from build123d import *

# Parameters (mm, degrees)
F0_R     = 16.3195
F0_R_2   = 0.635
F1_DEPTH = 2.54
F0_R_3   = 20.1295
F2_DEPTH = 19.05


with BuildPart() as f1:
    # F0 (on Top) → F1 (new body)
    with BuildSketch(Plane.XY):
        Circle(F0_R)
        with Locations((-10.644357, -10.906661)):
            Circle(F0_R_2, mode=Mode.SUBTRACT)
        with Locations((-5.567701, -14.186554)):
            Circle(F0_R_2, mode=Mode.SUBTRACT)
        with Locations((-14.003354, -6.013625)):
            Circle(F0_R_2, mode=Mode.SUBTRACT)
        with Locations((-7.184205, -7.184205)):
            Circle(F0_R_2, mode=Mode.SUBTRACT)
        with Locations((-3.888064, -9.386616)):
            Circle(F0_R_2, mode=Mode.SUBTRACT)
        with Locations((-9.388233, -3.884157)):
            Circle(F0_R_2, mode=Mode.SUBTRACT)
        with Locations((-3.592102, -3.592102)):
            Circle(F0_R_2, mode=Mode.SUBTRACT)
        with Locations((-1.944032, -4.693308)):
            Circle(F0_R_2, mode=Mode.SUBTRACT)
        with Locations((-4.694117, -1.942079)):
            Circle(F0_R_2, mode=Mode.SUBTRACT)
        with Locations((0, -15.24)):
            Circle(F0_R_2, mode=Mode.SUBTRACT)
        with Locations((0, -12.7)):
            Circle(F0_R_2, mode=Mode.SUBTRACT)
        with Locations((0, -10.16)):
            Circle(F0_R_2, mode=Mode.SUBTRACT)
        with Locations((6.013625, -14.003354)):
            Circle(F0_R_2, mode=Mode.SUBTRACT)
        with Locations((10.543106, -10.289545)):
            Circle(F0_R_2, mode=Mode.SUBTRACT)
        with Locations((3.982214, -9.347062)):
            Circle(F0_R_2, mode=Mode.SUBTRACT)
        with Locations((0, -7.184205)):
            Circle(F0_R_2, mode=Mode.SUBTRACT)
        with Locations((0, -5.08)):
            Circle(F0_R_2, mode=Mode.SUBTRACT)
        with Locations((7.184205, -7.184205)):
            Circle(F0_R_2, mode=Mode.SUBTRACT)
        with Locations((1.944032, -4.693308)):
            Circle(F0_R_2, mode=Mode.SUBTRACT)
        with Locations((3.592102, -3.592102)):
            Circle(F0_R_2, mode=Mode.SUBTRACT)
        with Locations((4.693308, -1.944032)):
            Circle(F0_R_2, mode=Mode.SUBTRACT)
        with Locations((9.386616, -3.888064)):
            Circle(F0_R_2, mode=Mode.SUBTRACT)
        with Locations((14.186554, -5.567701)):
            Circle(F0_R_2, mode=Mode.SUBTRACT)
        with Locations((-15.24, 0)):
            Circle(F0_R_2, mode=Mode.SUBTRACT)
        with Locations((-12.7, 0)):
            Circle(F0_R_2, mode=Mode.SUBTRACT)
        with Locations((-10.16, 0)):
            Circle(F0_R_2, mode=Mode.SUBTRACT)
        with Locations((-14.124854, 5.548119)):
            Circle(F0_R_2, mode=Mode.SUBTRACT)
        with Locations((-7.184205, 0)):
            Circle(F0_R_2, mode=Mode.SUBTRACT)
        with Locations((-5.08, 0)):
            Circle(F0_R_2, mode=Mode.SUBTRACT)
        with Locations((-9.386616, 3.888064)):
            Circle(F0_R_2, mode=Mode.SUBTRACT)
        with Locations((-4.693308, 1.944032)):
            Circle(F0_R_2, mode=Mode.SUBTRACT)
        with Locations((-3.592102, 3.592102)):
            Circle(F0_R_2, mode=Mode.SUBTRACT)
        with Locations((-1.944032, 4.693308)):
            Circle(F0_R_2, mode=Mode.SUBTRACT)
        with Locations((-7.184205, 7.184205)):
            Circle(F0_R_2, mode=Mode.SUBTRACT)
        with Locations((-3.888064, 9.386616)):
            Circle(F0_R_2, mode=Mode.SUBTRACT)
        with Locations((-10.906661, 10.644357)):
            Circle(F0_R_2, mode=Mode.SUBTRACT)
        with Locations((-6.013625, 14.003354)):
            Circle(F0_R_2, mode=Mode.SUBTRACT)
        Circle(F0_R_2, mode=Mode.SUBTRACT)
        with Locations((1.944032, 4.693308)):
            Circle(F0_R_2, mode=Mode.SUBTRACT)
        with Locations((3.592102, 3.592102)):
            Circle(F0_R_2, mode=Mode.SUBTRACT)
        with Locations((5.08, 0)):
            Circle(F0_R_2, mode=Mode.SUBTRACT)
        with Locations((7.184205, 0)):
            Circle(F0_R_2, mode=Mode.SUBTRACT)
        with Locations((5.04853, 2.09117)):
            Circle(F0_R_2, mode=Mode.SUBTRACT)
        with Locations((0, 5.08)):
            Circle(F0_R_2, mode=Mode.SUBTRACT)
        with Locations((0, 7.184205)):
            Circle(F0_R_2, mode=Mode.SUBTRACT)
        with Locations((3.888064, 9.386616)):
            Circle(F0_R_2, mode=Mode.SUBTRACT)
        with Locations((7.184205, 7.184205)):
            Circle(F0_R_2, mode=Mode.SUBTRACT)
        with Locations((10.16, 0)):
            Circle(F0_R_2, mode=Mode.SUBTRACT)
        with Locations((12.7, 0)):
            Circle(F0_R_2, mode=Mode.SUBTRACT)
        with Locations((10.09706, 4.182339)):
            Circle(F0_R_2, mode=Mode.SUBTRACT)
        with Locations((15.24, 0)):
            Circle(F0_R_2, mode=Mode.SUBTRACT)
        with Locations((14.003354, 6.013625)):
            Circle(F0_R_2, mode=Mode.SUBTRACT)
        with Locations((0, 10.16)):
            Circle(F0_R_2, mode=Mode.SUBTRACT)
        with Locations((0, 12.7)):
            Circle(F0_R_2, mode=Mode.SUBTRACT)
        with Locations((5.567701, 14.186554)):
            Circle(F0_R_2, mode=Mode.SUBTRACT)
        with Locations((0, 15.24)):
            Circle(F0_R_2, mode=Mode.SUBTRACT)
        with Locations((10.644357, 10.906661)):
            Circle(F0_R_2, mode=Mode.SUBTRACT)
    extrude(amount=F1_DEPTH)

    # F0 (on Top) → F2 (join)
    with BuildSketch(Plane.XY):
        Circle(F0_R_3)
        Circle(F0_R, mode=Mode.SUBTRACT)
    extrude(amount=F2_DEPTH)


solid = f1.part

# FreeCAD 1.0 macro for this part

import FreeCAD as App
import Part
import Sketcher
Q = App.Units.Quantity

doc = App.newDocument("Part")
body = doc.addObject("PartDesign::Body", "Body")

sketch1 = body.newObject("Sketcher::SketchObject", "Sketch")
sketch1.AttachmentSupport = (doc.getObject("XY_Plane"), [""])
sketch1.MapMode = "FlatFace"
sketch1.addGeometry([
    Part.Circle(App.Vector(0, 0, 0), App.Vector(0, 0, 1), 16.3195),
    Part.Circle(App.Vector(-10.644357, -10.906661, 0), App.Vector(0, 0, 1), 0.635),
    Part.Circle(App.Vector(-5.567701, -14.186554, 0), App.Vector(0, 0, 1), 0.635),
    Part.Circle(App.Vector(-3.888064, -9.386616, 0), App.Vector(0, 0, 1), 0.635),
    Part.Circle(App.Vector(-14.003354, -6.013625, 0), App.Vector(0, 0, 1), 0.635),
    Part.Circle(App.Vector(-9.388233, -3.884157, 0), App.Vector(0, 0, 1), 0.635),
    Part.Circle(App.Vector(-7.184205, -7.184205, 0), App.Vector(0, 0, 1), 0.635),
    Part.Circle(App.Vector(-1.944032, -4.693308, 0), App.Vector(0, 0, 1), 0.635),
    Part.Circle(App.Vector(-4.694117, -1.942079, 0), App.Vector(0, 0, 1), 0.635),
    Part.Circle(App.Vector(-3.592102, -3.592102, 0), App.Vector(0, 0, 1), 0.635),
    Part.Circle(App.Vector(0, -15.24, 0), App.Vector(0, 0, 1), 0.635),
    Part.Circle(App.Vector(0, -12.7, 0), App.Vector(0, 0, 1), 0.635),
    Part.Circle(App.Vector(6.013625, -14.003354, 0), App.Vector(0, 0, 1), 0.635),
    Part.Circle(App.Vector(0, -10.16, 0), App.Vector(0, 0, 1), 0.635),
    Part.Circle(App.Vector(3.982214, -9.347062, 0), App.Vector(0, 0, 1), 0.635),
    Part.Circle(App.Vector(10.543106, -10.289545, 0), App.Vector(0, 0, 1), 0.635),
    Part.Circle(App.Vector(0, -7.184205, 0), App.Vector(0, 0, 1), 0.635),
    Part.Circle(App.Vector(0, -5.08, 0), App.Vector(0, 0, 1), 0.635),
    Part.Circle(App.Vector(1.944032, -4.693308, 0), App.Vector(0, 0, 1), 0.635),
    Part.Circle(App.Vector(7.184205, -7.184205, 0), App.Vector(0, 0, 1), 0.635),
    Part.Circle(App.Vector(3.592102, -3.592102, 0), App.Vector(0, 0, 1), 0.635),
    Part.Circle(App.Vector(4.693308, -1.944032, 0), App.Vector(0, 0, 1), 0.635),
    Part.Circle(App.Vector(14.186554, -5.567701, 0), App.Vector(0, 0, 1), 0.635),
    Part.Circle(App.Vector(9.386616, -3.888064, 0), App.Vector(0, 0, 1), 0.635),
    Part.Circle(App.Vector(-15.24, 0, 0), App.Vector(0, 0, 1), 0.635),
    Part.Circle(App.Vector(-12.7, 0, 0), App.Vector(0, 0, 1), 0.635),
    Part.Circle(App.Vector(-10.16, 0, 0), App.Vector(0, 0, 1), 0.635),
    Part.Circle(App.Vector(-9.386616, 3.888064, 0), App.Vector(0, 0, 1), 0.635),
    Part.Circle(App.Vector(-14.124854, 5.548119, 0), App.Vector(0, 0, 1), 0.635),
    Part.Circle(App.Vector(-7.184205, 0, 0), App.Vector(0, 0, 1), 0.635),
    Part.Circle(App.Vector(-5.08, 0, 0), App.Vector(0, 0, 1), 0.635),
    Part.Circle(App.Vector(-4.693308, 1.944032, 0), App.Vector(0, 0, 1), 0.635),
    Part.Circle(App.Vector(-3.592102, 3.592102, 0), App.Vector(0, 0, 1), 0.635),
    Part.Circle(App.Vector(-7.184205, 7.184205, 0), App.Vector(0, 0, 1), 0.635),
    Part.Circle(App.Vector(-1.944032, 4.693308, 0), App.Vector(0, 0, 1), 0.635),
    Part.Circle(App.Vector(-10.906661, 10.644357, 0), App.Vector(0, 0, 1), 0.635),
    Part.Circle(App.Vector(-3.888064, 9.386616, 0), App.Vector(0, 0, 1), 0.635),
    Part.Circle(App.Vector(-6.013625, 14.003354, 0), App.Vector(0, 0, 1), 0.635),
    Part.Circle(App.Vector(0, 0, 0), App.Vector(0, 0, 1), 0.635),
    Part.Circle(App.Vector(3.592102, 3.592102, 0), App.Vector(0, 0, 1), 0.635),
    Part.Circle(App.Vector(5.08, 0, 0), App.Vector(0, 0, 1), 0.635),
    Part.Circle(App.Vector(7.184205, 0, 0), App.Vector(0, 0, 1), 0.635),
    Part.Circle(App.Vector(5.04853, 2.09117, 0), App.Vector(0, 0, 1), 0.635),
    Part.Circle(App.Vector(1.944032, 4.693308, 0), App.Vector(0, 0, 1), 0.635),
    Part.Circle(App.Vector(0, 5.08, 0), App.Vector(0, 0, 1), 0.635),
    Part.Circle(App.Vector(0, 7.184205, 0), App.Vector(0, 0, 1), 0.635),
    Part.Circle(App.Vector(7.184205, 7.184205, 0), App.Vector(0, 0, 1), 0.635),
    Part.Circle(App.Vector(10.16, 0, 0), App.Vector(0, 0, 1), 0.635),
    Part.Circle(App.Vector(12.7, 0, 0), App.Vector(0, 0, 1), 0.635),
    Part.Circle(App.Vector(15.24, 0, 0), App.Vector(0, 0, 1), 0.635),
    Part.Circle(App.Vector(10.09706, 4.182339, 0), App.Vector(0, 0, 1), 0.635),
    Part.Circle(App.Vector(14.003354, 6.013625, 0), App.Vector(0, 0, 1), 0.635),
    Part.Circle(App.Vector(3.888064, 9.386616, 0), App.Vector(0, 0, 1), 0.635),
    Part.Circle(App.Vector(0, 10.16, 0), App.Vector(0, 0, 1), 0.635),
    Part.Circle(App.Vector(0, 12.7, 0), App.Vector(0, 0, 1), 0.635),
    Part.Circle(App.Vector(0, 15.24, 0), App.Vector(0, 0, 1), 0.635),
    Part.Circle(App.Vector(5.567701, 14.186554, 0), App.Vector(0, 0, 1), 0.635),
    Part.Circle(App.Vector(10.644357, 10.906661, 0), App.Vector(0, 0, 1), 0.635),
], False)
sketch1.addConstraint([
    Sketcher.Constraint("Coincident", 0, 3, -1, 1),
    Sketcher.Constraint("Coincident", 38, 3, -1, 1),
    Sketcher.Constraint("Equal", 1, 2),
    Sketcher.Constraint("Equal", 2, 3),
    Sketcher.Constraint("Equal", 3, 4),
    Sketcher.Constraint("Equal", 4, 5),
    Sketcher.Constraint("Equal", 5, 6),
    Sketcher.Constraint("Equal", 6, 7),
    Sketcher.Constraint("Equal", 7, 8),
    Sketcher.Constraint("Equal", 8, 9),
    Sketcher.Constraint("Equal", 9, 10),
    Sketcher.Constraint("Equal", 10, 11),
    Sketcher.Constraint("Equal", 11, 12),
    Sketcher.Constraint("Equal", 12, 13),
    Sketcher.Constraint("Equal", 13, 14),
    Sketcher.Constraint("Equal", 14, 15),
    Sketcher.Constraint("Equal", 15, 16),
    Sketcher.Constraint("Equal", 16, 17),
    Sketcher.Constraint("Equal", 17, 18),
    Sketcher.Constraint("Equal", 18, 19),
    Sketcher.Constraint("Equal", 19, 20),
    Sketcher.Constraint("Equal", 20, 21),
    Sketcher.Constraint("Equal", 21, 22),
    Sketcher.Constraint("Equal", 22, 23),
    Sketcher.Constraint("Equal", 23, 24),
    Sketcher.Constraint("Equal", 24, 25),
    Sketcher.Constraint("Equal", 25, 26),
    Sketcher.Constraint("Equal", 26, 27),
    Sketcher.Constraint("Equal", 27, 28),
    Sketcher.Constraint("Equal", 28, 29),
    Sketcher.Constraint("Equal", 29, 30),
    Sketcher.Constraint("Equal", 30, 31),
    Sketcher.Constraint("Equal", 31, 32),
    Sketcher.Constraint("Equal", 32, 33),
    Sketcher.Constraint("Equal", 33, 34),
    Sketcher.Constraint("Equal", 34, 35),
    Sketcher.Constraint("Equal", 35, 36),
    Sketcher.Constraint("Equal", 36, 37),
    Sketcher.Constraint("Equal", 37, 38),
    Sketcher.Constraint("Equal", 38, 39),
    Sketcher.Constraint("Equal", 39, 40),
    Sketcher.Constraint("Equal", 40, 41),
    Sketcher.Constraint("Equal", 41, 42),
    Sketcher.Constraint("Equal", 42, 43),
    Sketcher.Constraint("Equal", 43, 44),
    Sketcher.Constraint("Equal", 44, 45),
    Sketcher.Constraint("Equal", 45, 46),
    Sketcher.Constraint("Equal", 46, 47),
    Sketcher.Constraint("Equal", 47, 48),
    Sketcher.Constraint("Equal", 48, 49),
    Sketcher.Constraint("Equal", 49, 50),
    Sketcher.Constraint("Equal", 50, 51),
    Sketcher.Constraint("Equal", 51, 52),
    Sketcher.Constraint("Equal", 52, 53),
    Sketcher.Constraint("Equal", 53, 54),
    Sketcher.Constraint("Equal", 54, 55),
    Sketcher.Constraint("Equal", 55, 56),
    Sketcher.Constraint("Equal", 56, 57),
    Sketcher.Constraint("Symmetric", 23, 3, 27, 3, -1, 1),
    Sketcher.Constraint("Symmetric", 21, 3, 31, 3, -1, 1),
    Sketcher.Constraint("Symmetric", 20, 3, 32, 3, -1, 1),
    Sketcher.Constraint("Symmetric", 19, 3, 33, 3, -1, 1),
    Sketcher.Constraint("Symmetric", 18, 3, 34, 3, -1, 1),
    Sketcher.Constraint("Symmetric", 12, 3, 37, 3, -1, 1),
    Sketcher.Constraint("Symmetric", 9, 3, 39, 3, -1, 1),
    Sketcher.Constraint("Symmetric", 30, 3, 40, 3, -1, 1),
    Sketcher.Constraint("Symmetric", 29, 3, 41, 3, -1, 1),
    Sketcher.Constraint("Symmetric", 7, 3, 43, 3, -1, 1),
    Sketcher.Constraint("Symmetric", 17, 3, 44, 3, -1, 1),
    Sketcher.Constraint("Symmetric", 16, 3, 45, 3, -1, 1),
    Sketcher.Constraint("Symmetric", 6, 3, 46, 3, -1, 1),
    Sketcher.Constraint("Symmetric", 26, 3, 47, 3, -1, 1),
    Sketcher.Constraint("Symmetric", 25, 3, 48, 3, -1, 1),
    Sketcher.Constraint("Symmetric", 24, 3, 49, 3, -1, 1),
    Sketcher.Constraint("Symmetric", 4, 3, 51, 3, -1, 1),
    Sketcher.Constraint("Symmetric", 3, 3, 52, 3, -1, 1),
    Sketcher.Constraint("Symmetric", 13, 3, 53, 3, -1, 1),
    Sketcher.Constraint("Symmetric", 11, 3, 54, 3, -1, 1),
    Sketcher.Constraint("Symmetric", 10, 3, 55, 3, -1, 1),
    Sketcher.Constraint("Symmetric", 2, 3, 56, 3, -1, 1),
    Sketcher.Constraint("Symmetric", 1, 3, 57, 3, -1, 1),
    Sketcher.Constraint("Symmetric", 7, 3, 18, 3, -2),
    Sketcher.Constraint("Symmetric", 6, 3, 19, 3, -2),
    Sketcher.Constraint("Symmetric", 9, 3, 20, 3, -2),
    Sketcher.Constraint("Symmetric", 36, 3, 52, 3, -2),
    Sketcher.Constraint("PointOnObject", 10, 3, -2),
    Sketcher.Constraint("PointOnObject", 11, 3, -2),
    Sketcher.Constraint("PointOnObject", 13, 3, -2),
    Sketcher.Constraint("PointOnObject", 16, 3, -2),
    Sketcher.Constraint("PointOnObject", 17, 3, -2),
    Sketcher.Constraint("PointOnObject", 24, 3, -1),
    Sketcher.Constraint("PointOnObject", 25, 3, -1),
    Sketcher.Constraint("PointOnObject", 26, 3, -1),
    Sketcher.Constraint("PointOnObject", 29, 3, -1),
    Sketcher.Constraint("PointOnObject", 30, 3, -1),
    Sketcher.Constraint("Horizontal", 6, 3, 16, 3),
    Sketcher.Constraint("Vertical", 6, 3, 29, 3),
    Sketcher.Constraint("Diameter", 1, Q("0.05 in")),
    Sketcher.Constraint("Diameter", 0, Q("1.285 in")),
    Sketcher.Constraint("DistanceY", 10, 3, -1, 1, Q("0.6 in")),
    Sketcher.Constraint("DistanceY", 11, 3, -1, 1, Q("0.5 in")),
    Sketcher.Constraint("DistanceY", 13, 3, -1, 1, Q("0.4 in")),
    Sketcher.Constraint("DistanceY", 17, 3, -1, 1, Q("0.2 in")),
    Sketcher.Constraint("DistanceX", 24, 3, -1, 1, Q("0.6 in")),
    Sketcher.Constraint("DistanceX", 25, 3, -1, 1, Q("0.5 in")),
    Sketcher.Constraint("DistanceX", 26, 3, -1, 1, Q("0.4 in")),
    Sketcher.Constraint("DistanceX", 30, 3, -1, 1, Q("0.2 in")),
    Sketcher.Constraint("DistanceY", 15, 3, -1, 1, Q("0.4051002 in")),
    Sketcher.Constraint("DistanceX", 2, 3, -1, 1, Q("5.567701 mm")),
    Sketcher.Constraint("DistanceY", 22, 3, -1, 1, Q("5.567701 mm")),
    Sketcher.Constraint("DistanceX", 5, 3, 7, 3, Q("7.444201 mm")),
    Sketcher.Constraint("DistanceY", 2, 3, 12, 3, Q("0.1832 mm")),
    Sketcher.Constraint("DistanceX", 19, 3, 15, 3, Q("3.358901 mm")),
    Sketcher.Constraint("DistanceY", 22, 3, 20, 3, Q("1.975599 mm")),
    Sketcher.Constraint("DistanceX", 27, 3, 8, 3, Q("4.692499 mm")),
    Sketcher.Constraint("DistanceX", 43, 3, 42, 3, Q("3.104498 mm")),
    Sketcher.Constraint("DistanceY", 1, 3, -1, 1, Q("10.906661 mm")),
    Sketcher.Constraint("DistanceY", 8, 3, -1, 1, Q("1.942079 mm")),
    Sketcher.Constraint("DistanceY", 14, 3, -1, 1, Q("9.347062 mm")),
    Sketcher.Constraint("DistanceY", -1, 1, 28, 3, Q("5.548119 mm")),
    Sketcher.Constraint("DistanceX", 35, 3, -1, 1, Q("10.906661 mm")),
    Sketcher.Constraint("DistanceX", -1, 1, 42, 3, Q("5.04853 mm")),
    Sketcher.Constraint("DistanceY", -1, 1, 42, 3, Q("2.09117 mm")),
    Sketcher.Constraint("DistanceX", -1, 1, 50, 3, Q("10.09706 mm")),
    Sketcher.Constraint("DistanceY", -1, 1, 50, 3, Q("4.182339 mm")),
    Sketcher.Constraint("DistanceX", 4, 3, 3, 3, Q("10.11529 mm")),
    Sketcher.Constraint("DistanceY", 3, 3, 4, 3, Q("3.372991 mm")),
    Sketcher.Constraint("DistanceY", 2, 3, 4, 3, Q("8.172929 mm")),
    Sketcher.Constraint("DistanceX", 4, 3, 5, 3, Q("4.615121 mm")),
    Sketcher.Constraint("DistanceY", 4, 3, 5, 3, Q("2.129468 mm")),
    Sketcher.Constraint("DistanceX", 6, 3, 3, 3, Q("3.296141 mm")),
    Sketcher.Constraint("DistanceY", 3, 3, 6, 3, Q("2.202411 mm")),
    Sketcher.Constraint("DistanceX", 1, 3, 6, 3, Q("3.460152 mm")),
    Sketcher.Constraint("DistanceY", 7, 3, 5, 3, Q("0.809151 mm")),
    Sketcher.Constraint("DistanceY", 7, 3, 8, 3, Q("2.751229 mm")),
    Sketcher.Constraint("DistanceX", 6, 3, 8, 3, Q("2.490088 mm")),
    Sketcher.Constraint("DistanceX", 9, 3, 7, 3, Q("1.64807 mm")),
    Sketcher.Constraint("DistanceX", 3, 3, 12, 3, Q("9.901689 mm")),
    Sketcher.Constraint("DistanceX", 14, 3, 12, 3, Q("2.031411 mm")),
    Sketcher.Constraint("DistanceY", 20, 3, 21, 3, Q("1.64807 mm")),
    Sketcher.Constraint("DistanceX", 19, 3, 22, 3, Q("7.002349 mm")),
    Sketcher.Constraint("DistanceY", 19, 3, 23, 3, Q("3.296141 mm")),
    Sketcher.Constraint("DistanceX", 28, 3, 5, 3, Q("4.736621 mm")),
    Sketcher.Constraint("DistanceX", 8, 3, 31, 3, Q("0.000809 mm")),
    Sketcher.Constraint("DistanceY", 33, 3, 35, 3, Q("3.460152 mm")),
])
pad1 = body.newObject("PartDesign::Pad", "Pad")
pad1.Profile = sketch1
pad1.Length = Q("0.1 in")

sketch2 = body.newObject("Sketcher::SketchObject", "Sketch001")
sketch2.AttachmentSupport = (doc.getObject("XY_Plane"), [""])
sketch2.MapMode = "FlatFace"
sketch2.addGeometry([
    Part.Circle(App.Vector(0, 0, 0), App.Vector(0, 0, 1), 20.1295),
    Part.Circle(App.Vector(0, 0, 0), App.Vector(0, 0, 1), 16.3195),
], False)
sketch2.addConstraint([
    Sketcher.Constraint("Coincident", 0, 3, -1, 1),
    Sketcher.Constraint("Coincident", 1, 3, -1, 1),
    Sketcher.Constraint("Diameter", 0, Q("1.585 in")),
    Sketcher.Constraint("Diameter", 1, Q("1.285 in")),
])
pad2 = body.newObject("PartDesign::Pad", "Pad001")
pad2.Profile = sketch2
pad2.Length = Q("0.75 in")

doc.recompute()
